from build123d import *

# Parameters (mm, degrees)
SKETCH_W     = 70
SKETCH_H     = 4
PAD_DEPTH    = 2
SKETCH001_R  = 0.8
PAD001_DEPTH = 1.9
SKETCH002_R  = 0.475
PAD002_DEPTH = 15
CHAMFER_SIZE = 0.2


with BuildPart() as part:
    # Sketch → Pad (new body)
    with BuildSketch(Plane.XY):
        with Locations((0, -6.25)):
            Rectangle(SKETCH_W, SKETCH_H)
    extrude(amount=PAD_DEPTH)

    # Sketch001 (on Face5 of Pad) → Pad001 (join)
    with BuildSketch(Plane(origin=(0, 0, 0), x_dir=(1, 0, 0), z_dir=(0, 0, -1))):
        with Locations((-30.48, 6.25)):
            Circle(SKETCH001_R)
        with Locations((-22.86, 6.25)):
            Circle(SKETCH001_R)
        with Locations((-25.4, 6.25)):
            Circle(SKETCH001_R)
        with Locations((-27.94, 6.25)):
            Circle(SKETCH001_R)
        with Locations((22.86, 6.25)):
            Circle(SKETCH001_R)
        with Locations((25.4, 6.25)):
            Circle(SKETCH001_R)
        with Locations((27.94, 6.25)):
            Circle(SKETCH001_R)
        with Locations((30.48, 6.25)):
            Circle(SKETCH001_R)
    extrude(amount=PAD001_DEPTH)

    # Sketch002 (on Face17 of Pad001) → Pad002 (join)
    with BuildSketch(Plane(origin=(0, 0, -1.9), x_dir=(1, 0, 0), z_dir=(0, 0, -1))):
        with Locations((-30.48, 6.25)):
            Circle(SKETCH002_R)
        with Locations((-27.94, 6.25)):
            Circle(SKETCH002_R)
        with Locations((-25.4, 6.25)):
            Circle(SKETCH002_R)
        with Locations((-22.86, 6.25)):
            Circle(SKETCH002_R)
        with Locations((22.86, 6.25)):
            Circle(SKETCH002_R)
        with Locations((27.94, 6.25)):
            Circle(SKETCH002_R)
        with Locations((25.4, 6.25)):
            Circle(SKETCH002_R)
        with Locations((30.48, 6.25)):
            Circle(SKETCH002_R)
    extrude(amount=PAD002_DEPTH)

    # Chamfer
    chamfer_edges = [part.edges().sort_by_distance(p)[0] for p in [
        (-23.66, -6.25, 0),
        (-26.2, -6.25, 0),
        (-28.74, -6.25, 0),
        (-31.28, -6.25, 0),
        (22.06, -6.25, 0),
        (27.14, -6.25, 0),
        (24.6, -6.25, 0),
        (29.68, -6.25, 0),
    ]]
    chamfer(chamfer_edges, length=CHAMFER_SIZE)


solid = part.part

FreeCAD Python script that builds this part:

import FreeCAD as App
import Part
import Sketcher
Q = App.Units.Quantity


def edges_at(feature, points):
    """Names of the edges that pass closest to the given points."""
    edges = feature.Shape.Edges
    near = lambda p: min(range(len(edges)), key=lambda i: edges[i].distToShape(Part.Vertex(*p))[0])
    return sorted({f"Edge{near(p) + 1}" for p in points})


def add_polygon(sketch, points):
    """Adds a closed chain of lines whose ends are joined by coincident constraints."""
    first, n = sketch.GeometryCount, len(points)
    for a, b in zip(points, points[1:] + points[:1]):
        sketch.addGeometry(Part.LineSegment(App.Vector(*a, 0), App.Vector(*b, 0)), False)
    for i in range(n):
        sketch.addConstraint(Sketcher.Constraint("Coincident", first + i, 2, first + (i + 1) % n, 1))

doc = App.newDocument("Part")
body = doc.addObject("PartDesign::Body", "Body")

# Sketch on XY plane
sketch1 = body.newObject("Sketcher::SketchObject", "Sketch")
sketch1.AttachmentSupport = (doc.getObject("XY_Plane"), [""])
sketch1.MapMode = "FlatFace"
add_polygon(sketch1, [(-35, -4.25), (-35, -8.25), (35, -8.25), (35, -4.25)])  # lines 0-3
sketch1.addConstraint([
    Sketcher.Constraint("Vertical", 0),
    Sketcher.Constraint("Horizontal", 1),
    Sketcher.Constraint("Vertical", 2),
    Sketcher.Constraint("Horizontal", 3),
    Sketcher.Constraint("DistanceX", 1, 1, 1, 2, Q("70 mm")),
    Sketcher.Constraint("DistanceY", 0, 2, 0, 1, Q("4 mm")),
    Sketcher.Constraint("DistanceX", 0, 2, -1, 1, Q("35 mm")),
    Sketcher.Constraint("DistanceY", 0, 2, -1, 1, Q("8.25 mm")),
])
pad1 = body.newObject("PartDesign::Pad", "Pad")
pad1.Profile = sketch1
pad1.Length = 2

# Sketch on XY plane
sketch2 = body.newObject("Sketcher::SketchObject", "Sketch001")
sketch2.AttachmentSupport = (doc.getObject("XY_Plane"), [""])
sketch2.MapMode = "FlatFace"
sketch2.addGeometry([
    Part.Circle(App.Vector(-30.48, -6.25, 0), App.Vector(0, 0, 1), 0.8),  # 0
    Part.Circle(App.Vector(-22.86, -6.25, 0), App.Vector(0, 0, 1), 0.8),  # 1
    Part.Circle(App.Vector(-25.4, -6.25, 0), App.Vector(0, 0, 1), 0.8),  # 2
    Part.Circle(App.Vector(-27.94, -6.25, 0), App.Vector(0, 0, 1), 0.8),  # 3
    Part.Circle(App.Vector(22.86, -6.25, 0), App.Vector(0, 0, 1), 0.8),  # 4
    Part.Circle(App.Vector(25.4, -6.25, 0), App.Vector(0, 0, 1), 0.8),  # 5
    Part.Circle(App.Vector(27.94, -6.25, 0), App.Vector(0, 0, 1), 0.8),  # 6
    Part.Circle(App.Vector(30.48, -6.25, 0), App.Vector(0, 0, 1), 0.8),  # 7
], False)
sketch2.addConstraint([
    Sketcher.Constraint("Equal", 0, 1),
    Sketcher.Constraint("Equal", 1, 2),
    Sketcher.Constraint("Equal", 2, 3),
    Sketcher.Constraint("Equal", 3, 4),
    Sketcher.Constraint("Equal", 4, 5),
    Sketcher.Constraint("Equal", 5, 6),
    Sketcher.Constraint("Equal", 6, 7),
    Sketcher.Constraint("Symmetric", 1, 3, 4, 3, -2),
    Sketcher.Constraint("Symmetric", 2, 3, 5, 3, -2),
    Sketcher.Constraint("Symmetric", 3, 3, 6, 3, -2),
    Sketcher.Constraint("Symmetric", 0, 3, 7, 3, -2),
    Sketcher.Constraint("Horizontal", 0, 3, 1, 3),
    Sketcher.Constraint("Horizontal", 1, 3, 2, 3),
    Sketcher.Constraint("Horizontal", 2, 3, 3, 3),
    Sketcher.Constraint("Diameter", 0, Q("1.6 mm")),
    Sketcher.Constraint("DistanceX", 2, 3, -1, 1, Q("25.4 mm")),
    Sketcher.Constraint("DistanceX", 3, 3, 4, 3, Q("50.8 mm")),
    Sketcher.Constraint("DistanceX", 0, 3, -1, 1, Q("30.48 mm")),
    Sketcher.Constraint("DistanceY", 0, 3, -1, 1, Q("6.25 mm")),
    Sketcher.Constraint("DistanceX", 1, 3, -1, 1, Q("22.86 mm")),
])
pad2 = body.newObject("PartDesign::Pad", "Pad001")
pad2.Profile = sketch2
pad2.Length = 1.9
pad2.Reversed = True

# Sketch on XY plane
sketch3 = body.newObject("Sketcher::SketchObject", "Sketch002")
sketch3.AttachmentSupport = (doc.getObject("XY_Plane"), [""])
sketch3.MapMode = "FlatFace"
sketch3.AttachmentOffset = App.Placement(App.Vector(0, 0, -1.9), App.Rotation())
sketch3.addGeometry([
    Part.Circle(App.Vector(-30.48, -6.25, 0), App.Vector(0, 0, 1), 0.475),  # 0
    Part.Circle(App.Vector(-27.94, -6.25, 0), App.Vector(0, 0, 1), 0.475),  # 1
    Part.Circle(App.Vector(-25.4, -6.25, 0), App.Vector(0, 0, 1), 0.475),  # 2
    Part.Circle(App.Vector(-22.86, -6.25, 0), App.Vector(0, 0, 1), 0.475),  # 3
    Part.Circle(App.Vector(22.86, -6.25, 0), App.Vector(0, 0, 1), 0.475),  # 4
    Part.Circle(App.Vector(27.94, -6.25, 0), App.Vector(0, 0, 1), 0.475),  # 5
    Part.Circle(App.Vector(25.4, -6.25, 0), App.Vector(0, 0, 1), 0.475),  # 6
    Part.Circle(App.Vector(30.48, -6.25, 0), App.Vector(0, 0, 1), 0.475),  # 7
], False)
sketch3.addConstraint([
    Sketcher.Constraint("Equal", 0, 1),
    Sketcher.Constraint("Equal", 1, 2),
    Sketcher.Constraint("Equal", 2, 3),
    Sketcher.Constraint("Equal", 3, 4),
    Sketcher.Constraint("Equal", 4, 5),
    Sketcher.Constraint("Equal", 5, 6),
    Sketcher.Constraint("Equal", 6, 7),
    Sketcher.Constraint("Symmetric", 3, 3, 4, 3, -2),
    Sketcher.Constraint("Symmetric", 1, 3, 5, 3, -2),
    Sketcher.Constraint("Symmetric", 2, 3, 6, 3, -2),
    Sketcher.Constraint("Symmetric", 0, 3, 7, 3, -2),
    Sketcher.Constraint("Horizontal", 0, 3, 1, 3),
    Sketcher.Constraint("Horizontal", 1, 3, 2, 3),
    Sketcher.Constraint("Horizontal", 2, 3, 3, 3),
    Sketcher.Constraint("Diameter", 0, Q("0.95 mm")),
    Sketcher.Constraint("DistanceX", 2, 3, -1, 1, Q("25.4 mm")),
    Sketcher.Constraint("DistanceX", 1, 3, 4, 3, Q("50.8 mm")),
    Sketcher.Constraint("DistanceX", 0, 3, -1, 1, Q("30.48 mm")),
    Sketcher.Constraint("DistanceY", 0, 3, -1, 1, Q("6.25 mm")),
    Sketcher.Constraint("DistanceX", 1, 3, -1, 1, Q("27.94 mm")),
])
pad3 = body.newObject("PartDesign::Pad", "Pad002")
pad3.Profile = sketch3
pad3.Length = 15
pad3.Reversed = True
doc.recompute()

chamfer = body.newObject("PartDesign::Chamfer", "Chamfer")
chamfer.Base = (pad3, edges_at(pad3, [
    (-23.66, -6.25, 0),
    (-26.2, -6.25, 0),
    (-28.74, -6.25, 0),
    (-31.28, -6.25, 0),
    (22.06, -6.25, 0),
    (27.14, -6.25, 0),
    (24.6, -6.25, 0),
    (29.68, -6.25, 0),
]))
chamfer.Size = 0.2

doc.recompute()
